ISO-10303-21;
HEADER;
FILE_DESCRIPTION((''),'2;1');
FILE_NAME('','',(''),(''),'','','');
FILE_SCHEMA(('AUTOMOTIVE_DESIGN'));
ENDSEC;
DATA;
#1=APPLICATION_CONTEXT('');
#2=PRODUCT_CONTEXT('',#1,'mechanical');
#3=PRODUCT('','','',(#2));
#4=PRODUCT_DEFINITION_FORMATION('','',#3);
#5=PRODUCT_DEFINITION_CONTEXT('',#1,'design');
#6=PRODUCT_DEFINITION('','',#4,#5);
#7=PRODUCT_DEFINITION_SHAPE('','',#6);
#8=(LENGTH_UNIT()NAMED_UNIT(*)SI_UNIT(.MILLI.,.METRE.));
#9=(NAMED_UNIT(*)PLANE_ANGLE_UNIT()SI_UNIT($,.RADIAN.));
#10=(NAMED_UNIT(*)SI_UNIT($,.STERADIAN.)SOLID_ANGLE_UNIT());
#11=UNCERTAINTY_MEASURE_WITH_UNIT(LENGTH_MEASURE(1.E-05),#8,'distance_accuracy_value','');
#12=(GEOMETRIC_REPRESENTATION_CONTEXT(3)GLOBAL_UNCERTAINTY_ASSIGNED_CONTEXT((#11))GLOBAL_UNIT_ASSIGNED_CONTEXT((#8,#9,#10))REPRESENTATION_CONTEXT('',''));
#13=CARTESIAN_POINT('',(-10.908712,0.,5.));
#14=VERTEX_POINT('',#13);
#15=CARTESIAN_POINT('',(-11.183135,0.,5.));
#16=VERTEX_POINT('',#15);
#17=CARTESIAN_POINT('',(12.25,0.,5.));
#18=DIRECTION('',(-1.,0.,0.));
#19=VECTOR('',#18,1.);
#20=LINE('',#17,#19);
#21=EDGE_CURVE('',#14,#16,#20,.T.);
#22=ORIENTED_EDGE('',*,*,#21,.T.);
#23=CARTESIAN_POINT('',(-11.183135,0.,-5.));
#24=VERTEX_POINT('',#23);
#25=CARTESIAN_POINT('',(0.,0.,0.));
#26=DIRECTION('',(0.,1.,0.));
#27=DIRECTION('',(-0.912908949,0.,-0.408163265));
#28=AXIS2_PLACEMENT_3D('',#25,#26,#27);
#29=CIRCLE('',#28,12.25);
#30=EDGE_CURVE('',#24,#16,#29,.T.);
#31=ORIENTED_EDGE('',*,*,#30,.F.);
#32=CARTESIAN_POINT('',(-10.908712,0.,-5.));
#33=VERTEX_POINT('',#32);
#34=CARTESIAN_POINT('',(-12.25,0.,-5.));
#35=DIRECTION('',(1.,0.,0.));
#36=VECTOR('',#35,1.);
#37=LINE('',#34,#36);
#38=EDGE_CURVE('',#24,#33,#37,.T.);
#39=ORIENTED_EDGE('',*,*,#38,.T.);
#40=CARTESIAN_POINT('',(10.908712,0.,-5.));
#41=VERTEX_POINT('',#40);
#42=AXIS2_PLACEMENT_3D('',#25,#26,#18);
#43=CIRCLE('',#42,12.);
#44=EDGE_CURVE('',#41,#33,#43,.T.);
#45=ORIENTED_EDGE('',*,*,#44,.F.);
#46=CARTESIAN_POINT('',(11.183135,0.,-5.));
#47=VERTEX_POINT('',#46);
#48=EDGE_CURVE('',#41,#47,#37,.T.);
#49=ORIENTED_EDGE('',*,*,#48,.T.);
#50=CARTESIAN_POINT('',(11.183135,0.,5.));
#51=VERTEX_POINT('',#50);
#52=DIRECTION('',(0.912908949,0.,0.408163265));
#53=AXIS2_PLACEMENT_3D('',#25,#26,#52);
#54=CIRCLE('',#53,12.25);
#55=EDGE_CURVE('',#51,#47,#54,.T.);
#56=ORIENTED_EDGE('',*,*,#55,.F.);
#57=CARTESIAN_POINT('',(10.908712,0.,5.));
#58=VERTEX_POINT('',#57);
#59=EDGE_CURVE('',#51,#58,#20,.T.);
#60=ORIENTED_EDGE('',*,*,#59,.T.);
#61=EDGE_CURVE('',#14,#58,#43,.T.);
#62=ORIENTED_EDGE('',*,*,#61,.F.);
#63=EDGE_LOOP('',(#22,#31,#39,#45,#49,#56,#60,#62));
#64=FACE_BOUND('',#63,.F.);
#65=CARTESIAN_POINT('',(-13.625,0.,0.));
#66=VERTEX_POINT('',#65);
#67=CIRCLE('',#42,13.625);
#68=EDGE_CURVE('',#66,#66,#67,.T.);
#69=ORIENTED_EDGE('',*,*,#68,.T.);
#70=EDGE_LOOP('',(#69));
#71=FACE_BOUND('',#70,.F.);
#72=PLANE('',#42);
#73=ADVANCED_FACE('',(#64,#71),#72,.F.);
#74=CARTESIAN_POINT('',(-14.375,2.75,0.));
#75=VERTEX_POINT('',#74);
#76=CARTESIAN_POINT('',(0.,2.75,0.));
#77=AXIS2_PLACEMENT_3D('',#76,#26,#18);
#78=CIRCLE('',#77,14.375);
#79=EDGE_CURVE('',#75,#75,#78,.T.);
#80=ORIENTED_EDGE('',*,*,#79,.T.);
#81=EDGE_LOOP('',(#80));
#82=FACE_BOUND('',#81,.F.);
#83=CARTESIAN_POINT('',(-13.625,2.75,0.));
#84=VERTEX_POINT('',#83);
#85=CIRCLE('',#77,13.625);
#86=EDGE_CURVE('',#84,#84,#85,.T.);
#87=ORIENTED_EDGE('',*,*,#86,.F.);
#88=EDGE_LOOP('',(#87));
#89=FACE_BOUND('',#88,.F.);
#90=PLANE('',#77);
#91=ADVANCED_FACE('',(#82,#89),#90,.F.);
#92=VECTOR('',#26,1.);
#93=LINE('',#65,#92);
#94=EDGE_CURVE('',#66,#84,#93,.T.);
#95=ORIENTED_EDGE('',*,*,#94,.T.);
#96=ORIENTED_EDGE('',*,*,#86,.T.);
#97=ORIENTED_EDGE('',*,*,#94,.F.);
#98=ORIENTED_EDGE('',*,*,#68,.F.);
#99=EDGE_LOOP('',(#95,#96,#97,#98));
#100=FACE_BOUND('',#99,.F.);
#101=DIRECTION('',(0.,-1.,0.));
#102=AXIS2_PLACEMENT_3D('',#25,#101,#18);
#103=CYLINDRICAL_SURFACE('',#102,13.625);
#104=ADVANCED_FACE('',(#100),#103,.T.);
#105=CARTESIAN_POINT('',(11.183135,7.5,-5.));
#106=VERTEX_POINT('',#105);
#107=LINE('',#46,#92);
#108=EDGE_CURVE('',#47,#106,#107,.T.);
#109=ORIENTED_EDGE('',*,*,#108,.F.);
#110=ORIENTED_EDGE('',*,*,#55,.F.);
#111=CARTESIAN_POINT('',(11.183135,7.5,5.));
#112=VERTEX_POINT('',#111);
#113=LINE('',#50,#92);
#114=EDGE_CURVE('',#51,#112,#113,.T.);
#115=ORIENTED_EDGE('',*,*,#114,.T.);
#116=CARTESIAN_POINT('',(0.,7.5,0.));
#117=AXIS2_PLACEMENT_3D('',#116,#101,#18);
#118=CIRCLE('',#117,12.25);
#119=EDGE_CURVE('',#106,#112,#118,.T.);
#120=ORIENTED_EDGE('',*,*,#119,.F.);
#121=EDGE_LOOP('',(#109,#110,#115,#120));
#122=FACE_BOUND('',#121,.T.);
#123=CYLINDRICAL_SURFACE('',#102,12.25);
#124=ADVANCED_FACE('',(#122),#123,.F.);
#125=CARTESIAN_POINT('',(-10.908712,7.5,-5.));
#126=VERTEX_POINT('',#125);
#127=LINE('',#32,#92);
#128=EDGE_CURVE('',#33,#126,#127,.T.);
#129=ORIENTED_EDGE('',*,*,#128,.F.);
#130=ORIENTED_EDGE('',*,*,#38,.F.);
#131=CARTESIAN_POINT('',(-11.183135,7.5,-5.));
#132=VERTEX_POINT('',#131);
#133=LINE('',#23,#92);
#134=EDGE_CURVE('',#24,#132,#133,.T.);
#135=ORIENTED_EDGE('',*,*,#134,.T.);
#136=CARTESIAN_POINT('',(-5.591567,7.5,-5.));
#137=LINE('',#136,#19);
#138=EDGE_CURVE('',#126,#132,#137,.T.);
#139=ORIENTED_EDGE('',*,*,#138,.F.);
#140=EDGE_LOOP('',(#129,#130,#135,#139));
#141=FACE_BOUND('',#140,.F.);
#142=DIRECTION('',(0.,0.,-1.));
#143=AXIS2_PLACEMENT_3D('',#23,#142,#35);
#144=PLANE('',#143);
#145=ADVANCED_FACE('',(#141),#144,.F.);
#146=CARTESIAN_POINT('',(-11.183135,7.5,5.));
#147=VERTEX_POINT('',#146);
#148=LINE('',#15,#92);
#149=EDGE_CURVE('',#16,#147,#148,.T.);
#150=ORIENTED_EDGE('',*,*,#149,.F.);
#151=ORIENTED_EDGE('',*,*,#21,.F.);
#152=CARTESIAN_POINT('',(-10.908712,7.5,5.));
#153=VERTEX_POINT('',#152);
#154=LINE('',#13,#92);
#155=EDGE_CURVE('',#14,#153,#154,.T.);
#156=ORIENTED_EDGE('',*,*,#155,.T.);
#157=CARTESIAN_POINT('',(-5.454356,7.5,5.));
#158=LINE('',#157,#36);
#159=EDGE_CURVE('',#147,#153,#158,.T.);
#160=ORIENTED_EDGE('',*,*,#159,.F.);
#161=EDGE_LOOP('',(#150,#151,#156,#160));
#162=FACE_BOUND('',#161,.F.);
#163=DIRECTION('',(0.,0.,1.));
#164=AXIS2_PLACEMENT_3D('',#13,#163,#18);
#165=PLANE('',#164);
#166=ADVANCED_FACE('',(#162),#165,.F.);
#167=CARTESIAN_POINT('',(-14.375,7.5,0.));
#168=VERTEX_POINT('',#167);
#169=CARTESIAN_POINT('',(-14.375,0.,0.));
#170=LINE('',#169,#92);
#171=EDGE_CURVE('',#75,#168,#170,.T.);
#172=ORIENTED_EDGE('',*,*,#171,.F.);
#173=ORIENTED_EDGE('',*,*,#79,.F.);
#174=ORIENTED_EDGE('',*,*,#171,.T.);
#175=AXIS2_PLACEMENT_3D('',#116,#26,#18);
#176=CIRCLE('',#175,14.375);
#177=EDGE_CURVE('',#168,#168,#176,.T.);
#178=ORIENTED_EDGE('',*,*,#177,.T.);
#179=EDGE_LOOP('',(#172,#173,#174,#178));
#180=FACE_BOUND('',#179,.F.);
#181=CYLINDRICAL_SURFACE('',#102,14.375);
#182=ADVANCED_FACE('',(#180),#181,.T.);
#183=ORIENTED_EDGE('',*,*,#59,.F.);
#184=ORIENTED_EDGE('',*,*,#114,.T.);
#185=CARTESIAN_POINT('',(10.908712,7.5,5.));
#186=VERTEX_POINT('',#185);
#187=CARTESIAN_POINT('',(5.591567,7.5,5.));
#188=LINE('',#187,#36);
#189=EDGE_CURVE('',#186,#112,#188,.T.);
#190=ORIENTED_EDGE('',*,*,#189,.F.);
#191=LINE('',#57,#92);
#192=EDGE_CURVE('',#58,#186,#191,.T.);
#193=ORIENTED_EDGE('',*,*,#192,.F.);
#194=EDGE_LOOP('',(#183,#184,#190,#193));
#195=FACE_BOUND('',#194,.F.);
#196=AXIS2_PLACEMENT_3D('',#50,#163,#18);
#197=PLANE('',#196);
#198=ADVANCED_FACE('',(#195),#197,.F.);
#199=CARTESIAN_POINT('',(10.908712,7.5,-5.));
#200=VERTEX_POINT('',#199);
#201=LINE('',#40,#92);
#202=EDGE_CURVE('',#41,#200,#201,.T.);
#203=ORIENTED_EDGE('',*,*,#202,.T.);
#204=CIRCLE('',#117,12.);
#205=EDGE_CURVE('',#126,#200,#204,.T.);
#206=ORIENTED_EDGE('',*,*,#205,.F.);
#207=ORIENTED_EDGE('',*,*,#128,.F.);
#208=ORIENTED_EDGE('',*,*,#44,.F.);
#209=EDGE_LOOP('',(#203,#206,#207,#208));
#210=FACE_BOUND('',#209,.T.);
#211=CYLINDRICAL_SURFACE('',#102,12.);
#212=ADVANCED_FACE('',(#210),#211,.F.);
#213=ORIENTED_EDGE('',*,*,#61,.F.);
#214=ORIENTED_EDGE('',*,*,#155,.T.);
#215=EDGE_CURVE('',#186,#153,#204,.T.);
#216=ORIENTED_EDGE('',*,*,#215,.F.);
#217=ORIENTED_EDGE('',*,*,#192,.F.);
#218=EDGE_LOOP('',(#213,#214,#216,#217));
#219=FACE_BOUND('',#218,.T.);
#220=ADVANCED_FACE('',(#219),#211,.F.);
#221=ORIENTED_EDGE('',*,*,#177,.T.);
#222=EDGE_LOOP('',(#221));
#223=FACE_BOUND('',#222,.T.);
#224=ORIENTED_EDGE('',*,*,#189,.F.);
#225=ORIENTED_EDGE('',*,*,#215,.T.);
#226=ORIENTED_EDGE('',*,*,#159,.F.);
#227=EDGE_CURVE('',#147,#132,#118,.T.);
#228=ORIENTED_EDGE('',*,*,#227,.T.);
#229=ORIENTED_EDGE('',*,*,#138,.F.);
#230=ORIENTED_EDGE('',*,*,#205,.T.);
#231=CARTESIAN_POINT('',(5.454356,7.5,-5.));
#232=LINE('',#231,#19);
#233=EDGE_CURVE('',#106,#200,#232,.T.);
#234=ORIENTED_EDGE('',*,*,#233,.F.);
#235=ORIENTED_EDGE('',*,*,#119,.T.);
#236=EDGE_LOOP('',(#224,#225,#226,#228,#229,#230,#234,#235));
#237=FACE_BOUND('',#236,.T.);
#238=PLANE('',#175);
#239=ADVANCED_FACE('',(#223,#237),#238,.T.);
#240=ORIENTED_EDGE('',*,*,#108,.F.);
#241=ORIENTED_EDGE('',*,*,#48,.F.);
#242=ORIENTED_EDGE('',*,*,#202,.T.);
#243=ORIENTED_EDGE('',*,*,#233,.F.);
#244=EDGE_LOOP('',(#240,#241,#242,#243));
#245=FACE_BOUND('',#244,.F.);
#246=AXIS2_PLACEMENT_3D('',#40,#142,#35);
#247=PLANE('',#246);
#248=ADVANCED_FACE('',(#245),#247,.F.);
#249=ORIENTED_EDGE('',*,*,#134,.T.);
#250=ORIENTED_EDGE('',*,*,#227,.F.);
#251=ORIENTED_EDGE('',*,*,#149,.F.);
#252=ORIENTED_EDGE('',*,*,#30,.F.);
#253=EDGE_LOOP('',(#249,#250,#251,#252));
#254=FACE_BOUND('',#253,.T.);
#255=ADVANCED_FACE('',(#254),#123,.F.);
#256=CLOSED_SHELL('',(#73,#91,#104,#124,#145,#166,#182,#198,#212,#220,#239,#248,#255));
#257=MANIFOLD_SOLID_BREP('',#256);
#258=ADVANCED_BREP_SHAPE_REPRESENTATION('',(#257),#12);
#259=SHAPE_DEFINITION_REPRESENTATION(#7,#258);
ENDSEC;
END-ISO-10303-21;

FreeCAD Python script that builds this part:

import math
import FreeCAD as App
import Part
import Sketcher
from FreeCAD import Vector
Q = App.Units.Quantity

doc = App.newDocument("Part")
body = doc.addObject("PartDesign::Body", "Body")

sketch1 = body.newObject("Sketcher::SketchObject", "Sketch")
sketch1.AttachmentSupport = (doc.getObject("XZ_Plane"), [""])
sketch1.MapMode = "FlatFace"
sketch1.addGeometry(Part.Circle(Vector(0, 0, 0), Vector(0, 0, 1), 14.375), False)
sketch1.addGeometry(Part.Circle(Vector(0, 0, 0), Vector(0, 0, 1), 12), False)
sketch1.addConstraint(Sketcher.Constraint("Coincident", 0, 3, -1, 1))
sketch1.addConstraint(Sketcher.Constraint("Coincident", 1, 3, -1, 1))
sketch1.addConstraint(Sketcher.Constraint("Diameter", 1, Q("24 mm")))
sketch1.addConstraint(Sketcher.Constraint("Diameter", 0, Q("28.75 mm")))
pad1 = body.newObject("PartDesign::Pad", "Pad")
pad1.Profile = sketch1
pad1.Length = 7.5
pad1.Reversed = True

sketch2 = body.newObject("Sketcher::SketchObject", "Sketch001")
sketch2.AttachmentSupport = (doc.getObject("XZ_Plane"), [""])
sketch2.MapMode = "FlatFace"
sketch2.addGeometry(Part.Circle(Vector(0, 0, 0), Vector(0, 0, 1), 14.375), False)
sketch2.addGeometry(Part.Circle(Vector(0, 0, 0), Vector(0, 0, 1), 13.625), False)
sketch2.addConstraint(Sketcher.Constraint("Coincident", 0, 3, -1, 1))
sketch2.addConstraint(Sketcher.Constraint("Coincident", 1, 3, -1, 1))
sketch2.addConstraint(Sketcher.Constraint("Diameter", 0, Q("28.75 mm")))
sketch2.addConstraint(Sketcher.Constraint("Diameter", 1, Q("27.25 mm")))
pocket1 = body.newObject("PartDesign::Pocket", "Pocket")
pocket1.Profile = sketch2
pocket1.Length = 2.75

sketch3 = body.newObject("Sketcher::SketchObject", "Sketch002")
sketch3.AttachmentSupport = (doc.getObject("XZ_Plane"), [""])
sketch3.MapMode = "FlatFace"
sketch3.addGeometry(Part.ArcOfCircle(Part.Circle(Vector(0, 0, 0), Vector(0, 0, 1), 12), math.radians(155.375682), math.radians(204.624318)), False)
sketch3.addGeometry(Part.LineSegment(Vector(-10.908712, -5, 0), Vector(-11.183135, -5, 0)), False)
sketch3.addGeometry(Part.ArcOfCircle(Part.Circle(Vector(0, 0, 0), Vector(0, 0, 1), 12.25), math.radians(155.910494), math.radians(204.089506)), False)
sketch3.addGeometry(Part.LineSegment(Vector(-11.183135, 5, 0), Vector(-10.908712, 5, 0)), False)
sketch3.addGeometry(Part.ArcOfCircle(Part.Circle(Vector(0, 0, 0), Vector(0, 0, 1), 12), math.radians(-24.624318), math.radians(24.624318)), False)
sketch3.addGeometry(Part.LineSegment(Vector(10.908712, 5, 0), Vector(11.183135, 5, 0)), False)
sketch3.addGeometry(Part.ArcOfCircle(Part.Circle(Vector(0, 0, 0), Vector(0, 0, 1), 12.25), math.radians(-24.089506), math.radians(24.089506)), False)
sketch3.addGeometry(Part.LineSegment(Vector(11.183135, -5, 0), Vector(10.908712, -5, 0)), False)
sketch3.addConstraint(Sketcher.Constraint("Coincident", 0, 2, 1, 1))
sketch3.addConstraint(Sketcher.Constraint("Coincident", 1, 2, 2, 2))
sketch3.addConstraint(Sketcher.Constraint("Coincident", 2, 1, 3, 1))
sketch3.addConstraint(Sketcher.Constraint("Coincident", 3, 2, 0, 1))
sketch3.addConstraint(Sketcher.Constraint("Coincident", 4, 2, 5, 1))
sketch3.addConstraint(Sketcher.Constraint("Coincident", 5, 2, 6, 2))
sketch3.addConstraint(Sketcher.Constraint("Coincident", 6, 1, 7, 1))
sketch3.addConstraint(Sketcher.Constraint("Coincident", 7, 2, 4, 1))
sketch3.addConstraint(Sketcher.Constraint("Horizontal", 1))
sketch3.addConstraint(Sketcher.Constraint("Horizontal", 3))
sketch3.addConstraint(Sketcher.Constraint("Horizontal", 5))
sketch3.addConstraint(Sketcher.Constraint("Horizontal", 7))
sketch3.addConstraint(Sketcher.Constraint("Coincident", 0, 3, -1, 1))
sketch3.addConstraint(Sketcher.Constraint("Coincident", 2, 3, -1, 1))
sketch3.addConstraint(Sketcher.Constraint("Coincident", 4, 3, -1, 1))
sketch3.addConstraint(Sketcher.Constraint("Coincident", 6, 3, -1, 1))
sketch3.addConstraint(Sketcher.Constraint("Equal", 0, 4))
sketch3.addConstraint(Sketcher.Constraint("Equal", 2, 6))
sketch3.addConstraint(Sketcher.Constraint("Horizontal", 3, 2, 4, 2))
sketch3.addConstraint(Sketcher.Constraint("Horizontal", 1, 2, 6, 1))
sketch3.addConstraint(Sketcher.Constraint("Vertical", 1, 2, 2, 1))
sketch3.addConstraint(Sketcher.Constraint("Radius", 0, Q("12 mm")))
sketch3.addConstraint(Sketcher.Constraint("Radius", 2, Q("12.25 mm")))
sketch3.addConstraint(Sketcher.Constraint("DistanceY", 1, 2, 2, 1, Q("10 mm")))
pocket2 = body.newObject("PartDesign::Pocket", "Pocket001")
pocket2.Profile = sketch3
pocket2.Type = "ThroughAll"

doc.recompute()
